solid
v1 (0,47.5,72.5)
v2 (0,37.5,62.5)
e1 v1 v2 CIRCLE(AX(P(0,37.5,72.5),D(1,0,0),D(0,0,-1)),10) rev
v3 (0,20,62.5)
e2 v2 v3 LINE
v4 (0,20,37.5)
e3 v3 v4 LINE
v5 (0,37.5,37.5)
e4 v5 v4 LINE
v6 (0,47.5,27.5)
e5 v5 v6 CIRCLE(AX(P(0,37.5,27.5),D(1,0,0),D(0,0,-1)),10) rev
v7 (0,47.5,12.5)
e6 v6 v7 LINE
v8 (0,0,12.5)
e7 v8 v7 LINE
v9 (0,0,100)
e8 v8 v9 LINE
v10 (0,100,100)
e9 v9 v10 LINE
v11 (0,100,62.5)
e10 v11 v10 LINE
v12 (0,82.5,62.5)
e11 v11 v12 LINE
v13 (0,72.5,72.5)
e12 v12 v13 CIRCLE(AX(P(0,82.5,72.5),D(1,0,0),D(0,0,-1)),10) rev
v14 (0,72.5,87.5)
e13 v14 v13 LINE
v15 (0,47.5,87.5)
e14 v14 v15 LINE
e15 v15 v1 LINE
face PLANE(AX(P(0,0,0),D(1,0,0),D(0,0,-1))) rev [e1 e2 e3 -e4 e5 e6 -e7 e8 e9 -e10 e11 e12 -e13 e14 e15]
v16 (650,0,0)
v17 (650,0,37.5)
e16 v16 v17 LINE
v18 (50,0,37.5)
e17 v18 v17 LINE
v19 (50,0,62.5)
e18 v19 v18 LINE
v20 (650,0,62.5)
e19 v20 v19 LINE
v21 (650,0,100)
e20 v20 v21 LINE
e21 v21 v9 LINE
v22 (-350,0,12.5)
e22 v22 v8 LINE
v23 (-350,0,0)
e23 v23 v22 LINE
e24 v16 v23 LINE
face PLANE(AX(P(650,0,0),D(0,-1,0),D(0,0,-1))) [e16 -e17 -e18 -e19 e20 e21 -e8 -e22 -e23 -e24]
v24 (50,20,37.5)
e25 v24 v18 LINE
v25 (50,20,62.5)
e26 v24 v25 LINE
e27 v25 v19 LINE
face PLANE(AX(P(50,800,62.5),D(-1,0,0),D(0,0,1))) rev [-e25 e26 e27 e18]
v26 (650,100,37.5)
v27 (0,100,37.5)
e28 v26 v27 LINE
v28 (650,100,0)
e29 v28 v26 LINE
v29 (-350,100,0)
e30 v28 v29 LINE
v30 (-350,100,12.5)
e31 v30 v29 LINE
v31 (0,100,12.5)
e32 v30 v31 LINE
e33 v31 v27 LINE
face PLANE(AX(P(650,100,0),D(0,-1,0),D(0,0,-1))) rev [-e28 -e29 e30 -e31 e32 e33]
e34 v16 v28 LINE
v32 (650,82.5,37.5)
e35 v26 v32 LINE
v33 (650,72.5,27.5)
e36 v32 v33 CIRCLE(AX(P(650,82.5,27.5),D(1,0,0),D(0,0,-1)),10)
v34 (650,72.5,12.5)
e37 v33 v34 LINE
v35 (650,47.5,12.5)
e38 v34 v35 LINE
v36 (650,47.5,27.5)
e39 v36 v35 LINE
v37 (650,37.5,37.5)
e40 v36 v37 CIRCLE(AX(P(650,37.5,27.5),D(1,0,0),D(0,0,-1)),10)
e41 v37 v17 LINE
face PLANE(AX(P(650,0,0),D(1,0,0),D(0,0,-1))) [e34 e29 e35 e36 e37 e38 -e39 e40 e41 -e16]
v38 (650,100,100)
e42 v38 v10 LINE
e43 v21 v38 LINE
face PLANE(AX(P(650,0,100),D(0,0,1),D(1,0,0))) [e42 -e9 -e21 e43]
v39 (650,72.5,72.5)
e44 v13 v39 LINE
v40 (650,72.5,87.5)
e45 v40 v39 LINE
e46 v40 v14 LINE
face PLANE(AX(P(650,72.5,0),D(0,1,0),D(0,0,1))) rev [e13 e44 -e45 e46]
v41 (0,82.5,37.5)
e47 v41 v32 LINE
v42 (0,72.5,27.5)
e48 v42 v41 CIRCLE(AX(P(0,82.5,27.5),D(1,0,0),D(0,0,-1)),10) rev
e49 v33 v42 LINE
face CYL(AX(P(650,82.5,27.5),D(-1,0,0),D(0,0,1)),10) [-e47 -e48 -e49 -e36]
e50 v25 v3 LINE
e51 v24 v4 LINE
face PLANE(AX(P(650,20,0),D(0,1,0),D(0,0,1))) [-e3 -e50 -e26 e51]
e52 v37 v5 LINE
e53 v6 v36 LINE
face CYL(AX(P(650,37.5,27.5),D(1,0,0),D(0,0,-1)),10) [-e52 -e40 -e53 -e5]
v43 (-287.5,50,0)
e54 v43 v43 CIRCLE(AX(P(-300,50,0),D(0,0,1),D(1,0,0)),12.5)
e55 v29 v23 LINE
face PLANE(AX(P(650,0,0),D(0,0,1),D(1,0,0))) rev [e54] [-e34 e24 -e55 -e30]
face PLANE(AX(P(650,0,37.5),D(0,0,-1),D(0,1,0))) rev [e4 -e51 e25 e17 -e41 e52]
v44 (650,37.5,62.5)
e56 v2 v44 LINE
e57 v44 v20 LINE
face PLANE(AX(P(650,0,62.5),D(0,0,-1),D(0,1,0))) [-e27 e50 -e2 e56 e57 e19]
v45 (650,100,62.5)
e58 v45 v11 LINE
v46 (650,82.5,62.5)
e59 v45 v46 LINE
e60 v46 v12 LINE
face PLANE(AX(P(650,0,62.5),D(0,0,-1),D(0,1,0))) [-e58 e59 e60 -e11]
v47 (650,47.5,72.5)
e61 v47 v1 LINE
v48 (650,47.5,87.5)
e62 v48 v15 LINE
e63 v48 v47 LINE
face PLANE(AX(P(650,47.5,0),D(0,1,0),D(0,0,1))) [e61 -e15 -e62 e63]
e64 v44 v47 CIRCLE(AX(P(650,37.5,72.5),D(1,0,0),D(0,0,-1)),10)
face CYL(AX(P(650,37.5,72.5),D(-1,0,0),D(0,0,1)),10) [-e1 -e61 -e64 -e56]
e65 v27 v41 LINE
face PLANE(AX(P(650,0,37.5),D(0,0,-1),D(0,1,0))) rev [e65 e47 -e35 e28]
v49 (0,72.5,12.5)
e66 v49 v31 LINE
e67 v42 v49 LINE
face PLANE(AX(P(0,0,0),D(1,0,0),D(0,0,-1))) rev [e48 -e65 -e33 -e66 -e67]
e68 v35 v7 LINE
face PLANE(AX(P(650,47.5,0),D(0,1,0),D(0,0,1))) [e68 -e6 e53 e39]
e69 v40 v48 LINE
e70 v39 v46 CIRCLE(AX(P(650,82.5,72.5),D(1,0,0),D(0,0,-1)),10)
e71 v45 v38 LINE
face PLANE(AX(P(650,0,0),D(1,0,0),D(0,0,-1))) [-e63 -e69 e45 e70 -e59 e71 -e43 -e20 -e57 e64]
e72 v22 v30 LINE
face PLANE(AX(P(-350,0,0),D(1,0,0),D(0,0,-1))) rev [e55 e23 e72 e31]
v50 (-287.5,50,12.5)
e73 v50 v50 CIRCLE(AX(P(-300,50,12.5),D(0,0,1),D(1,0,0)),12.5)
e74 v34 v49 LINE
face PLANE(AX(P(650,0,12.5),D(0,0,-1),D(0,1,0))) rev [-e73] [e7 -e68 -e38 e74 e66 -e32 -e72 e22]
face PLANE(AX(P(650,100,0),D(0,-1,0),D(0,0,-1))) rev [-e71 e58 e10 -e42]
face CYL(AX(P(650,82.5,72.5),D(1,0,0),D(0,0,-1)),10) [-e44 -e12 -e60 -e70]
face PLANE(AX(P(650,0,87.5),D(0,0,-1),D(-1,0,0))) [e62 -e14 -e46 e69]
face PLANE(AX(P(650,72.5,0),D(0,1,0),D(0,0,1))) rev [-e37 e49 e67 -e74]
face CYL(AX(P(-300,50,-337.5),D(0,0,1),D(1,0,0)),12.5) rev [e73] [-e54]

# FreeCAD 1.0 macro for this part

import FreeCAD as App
import Part
import Sketcher


def edges_at(feature, points):
    """Names of the edges that pass closest to the given points."""
    edges = feature.Shape.Edges
    near = lambda p: min(range(len(edges)), key=lambda i: edges[i].distToShape(Part.Vertex(*p))[0])
    return sorted({f"Edge{near(p) + 1}" for p in points})

doc = App.newDocument("Part")
body = doc.addObject("PartDesign::Body", "Body")

sketch1 = doc.addObject("Sketcher::SketchObject", "Sketch")
body.addObject(sketch1)
sketch1.AttachmentSupport = (doc.YZ_Plane, [""])
sketch1.MapMode = "FlatFace"
sketch1.addGeometry([
    Part.LineSegment(App.Vector(0, 100, 0), App.Vector(0, 0, 0)),
    Part.LineSegment(App.Vector(0, 0, 0), App.Vector(100, 0, 0)),
    Part.LineSegment(App.Vector(100, 0, 0), App.Vector(100, 38, 0)),
    Part.LineSegment(App.Vector(100, 38, 0), App.Vector(72, 38, 0)),
    Part.LineSegment(App.Vector(72, 38, 0), App.Vector(72, 12, 0)),
    Part.LineSegment(App.Vector(72, 12, 0), App.Vector(48, 12, 0)),
    Part.LineSegment(App.Vector(48, 12, 0), App.Vector(48, 38, 0)),
    Part.LineSegment(App.Vector(48, 38, 0), App.Vector(20, 38, 0)),
    Part.LineSegment(App.Vector(20, 38, 0), App.Vector(20, 62, 0)),
    Part.LineSegment(App.Vector(20, 62, 0), App.Vector(48, 62, 0)),
    Part.LineSegment(App.Vector(48, 62, 0), App.Vector(48, 88, 0)),
    Part.LineSegment(App.Vector(48, 88, 0), App.Vector(72, 88, 0)),
    Part.LineSegment(App.Vector(72, 88, 0), App.Vector(72, 62, 0)),
    Part.LineSegment(App.Vector(72, 62, 0), App.Vector(100, 62, 0)),
    Part.LineSegment(App.Vector(100, 62, 0), App.Vector(100, 100, 0)),
    Part.LineSegment(App.Vector(100, 100, 0), App.Vector(0, 100, 0)),
], False)
sketch1.addConstraint([
    Sketcher.Constraint("Coincident", 0, 2, 1, 1),
    Sketcher.Constraint("Coincident", 1, 2, 2, 1),
    Sketcher.Constraint("Coincident", 2, 2, 3, 1),
    Sketcher.Constraint("Coincident", 3, 2, 4, 1),
    Sketcher.Constraint("Coincident", 4, 2, 5, 1),
    Sketcher.Constraint("Coincident", 5, 2, 6, 1),
    Sketcher.Constraint("Coincident", 6, 2, 7, 1),
    Sketcher.Constraint("Coincident", 7, 2, 8, 1),
    Sketcher.Constraint("Coincident", 8, 2, 9, 1),
    Sketcher.Constraint("Coincident", 9, 2, 10, 1),
    Sketcher.Constraint("Coincident", 10, 2, 11, 1),
    Sketcher.Constraint("Coincident", 11, 2, 12, 1),
    Sketcher.Constraint("Coincident", 12, 2, 13, 1),
    Sketcher.Constraint("Coincident", 13, 2, 14, 1),
    Sketcher.Constraint("Coincident", 14, 2, 15, 1),
    Sketcher.Constraint("Coincident", 15, 2, 0, 1),
    Sketcher.Constraint("Vertical", 0),
    Sketcher.Constraint("Horizontal", 1),
    Sketcher.Constraint("Vertical", 2),
    Sketcher.Constraint("Horizontal", 3),
    Sketcher.Constraint("Vertical", 4),
    Sketcher.Constraint("Horizontal", 5),
    Sketcher.Constraint("Vertical", 6),
    Sketcher.Constraint("Horizontal", 7),
    Sketcher.Constraint("Vertical", 8),
    Sketcher.Constraint("Horizontal", 9),
    Sketcher.Constraint("Vertical", 10),
    Sketcher.Constraint("Horizontal", 11),
    Sketcher.Constraint("Vertical", 12),
    Sketcher.Constraint("Horizontal", 13),
    Sketcher.Constraint("Vertical", 14),
    Sketcher.Constraint("Horizontal", 15),
    Sketcher.Constraint("Coincident", 0, 2, -1, 1),
    Sketcher.Constraint("Horizontal", 3, 2, 6, 2),
    Sketcher.Constraint("Horizontal", 9, 2, 12, 2),
    Sketcher.Constraint("Vertical", 6, 2, 9, 2),
    Sketcher.Constraint("Vertical", 4, 2, 11, 2),
    Sketcher.Constraint("Vertical", 2, 2, 13, 2),
    Sketcher.Constraint("Equal", 3, 7),
    Sketcher.Constraint("Equal", 15, 0),
    Sketcher.Constraint("Equal", 11, 4),
    Sketcher.Constraint("Equal", 6, 8),
    Sketcher.Constraint("Equal", 8, 10),
    Sketcher.Constraint("Equal", 2, 14),
    Sketcher.Constraint("DistanceX", 1, 1, 1, 2, 100.0),
    Sketcher.Constraint("DistanceX", 5, 2, 5, 1, 25.0),
    Sketcher.Constraint("DistanceX", 3, 2, 3, 1, 27.5),
])
pad1 = doc.addObject("PartDesign::Pad", "Pad")
body.addObject(pad1)
pad1.Profile = sketch1
pad1.Length = 650

sketch2 = doc.addObject("Sketcher::SketchObject", "Sketch001")
body.addObject(sketch2)
sketch2.AttachmentSupport = (doc.XZ_Plane, [""])
sketch2.MapMode = "FlatFace"
sketch2.addGeometry([
    Part.LineSegment(App.Vector(50, 62, 0), App.Vector(50, 38, 0)),
    Part.LineSegment(App.Vector(50, 38, 0), App.Vector(750, 38, 0)),
    Part.LineSegment(App.Vector(750, 38, 0), App.Vector(750, 62, 0)),
    Part.LineSegment(App.Vector(750, 62, 0), App.Vector(50, 62, 0)),
], False)
sketch2.addConstraint([
    Sketcher.Constraint("Coincident", 0, 2, 1, 1),
    Sketcher.Constraint("Coincident", 1, 2, 2, 1),
    Sketcher.Constraint("Coincident", 2, 2, 3, 1),
    Sketcher.Constraint("Coincident", 3, 2, 0, 1),
    Sketcher.Constraint("Vertical", 0),
    Sketcher.Constraint("Horizontal", 1),
    Sketcher.Constraint("Vertical", 2),
    Sketcher.Constraint("Horizontal", 3),
    Sketcher.Constraint("DistanceX", 1, 1, 1, 2, 700.0),
    Sketcher.Constraint("DistanceY", 0, 2, 0, 1, 25.0),
    Sketcher.Constraint("DistanceX", -1, 1, 0, 2, 50.0),
    Sketcher.Constraint("DistanceY", -1, 1, 0, 2, 37.5),
])
pocket1 = doc.addObject("PartDesign::Pocket", "Pocket")
body.addObject(pocket1)
pocket1.Profile = sketch2
pocket1.Length = 800
doc.recompute()

fillet = doc.addObject("PartDesign::Fillet", "Fillet")
body.addObject(fillet)
fillet.Base = (pocket1, edges_at(pocket1, [
    (325, 72.5, 37.5),
    (325, 72.5, 62.5),
    (325, 47.5, 62.5),
    (325, 47.5, 37.5),
]))
fillet.Radius = 10

sketch3 = doc.addObject("Sketcher::SketchObject", "Sketch002")
body.addObject(sketch3)
sketch3.AttachmentSupport = (doc.YZ_Plane, [""])
sketch3.MapMode = "FlatFace"
sketch3.addGeometry([
    Part.LineSegment(App.Vector(100, 0, 0), App.Vector(0, 0, 0)),
    Part.LineSegment(App.Vector(0, 0, 0), App.Vector(0, 12, 0)),
    Part.LineSegment(App.Vector(0, 12, 0), App.Vector(100, 12, 0)),
    Part.LineSegment(App.Vector(100, 12, 0), App.Vector(100, 0, 0)),
], False)
sketch3.addConstraint([
    Sketcher.Constraint("Coincident", 0, 2, 1, 1),
    Sketcher.Constraint("Coincident", 1, 2, 2, 1),
    Sketcher.Constraint("Coincident", 2, 2, 3, 1),
    Sketcher.Constraint("Coincident", 3, 2, 0, 1),
    Sketcher.Constraint("Horizontal", 0),
    Sketcher.Constraint("Vertical", 1),
    Sketcher.Constraint("Horizontal", 2),
    Sketcher.Constraint("Vertical", 3),
    Sketcher.Constraint("Coincident", 0, 2, -1, 1),
    Sketcher.Constraint("DistanceX", 0, 2, 0, 1, 100.0),
    Sketcher.Constraint("DistanceY", 1, 1, 1, 2, 12.5),
])
pad2 = doc.addObject("PartDesign::Pad", "Pad001")
body.addObject(pad2)
pad2.Profile = sketch3
pad2.Length = 350
pad2.Reversed = True

sketch4 = doc.addObject("Sketcher::SketchObject", "Sketch003")
body.addObject(sketch4)
sketch4.AttachmentSupport = (doc.XY_Plane, [""])
sketch4.MapMode = "FlatFace"
sketch4.AttachmentOffset = App.Placement(App.Vector(0, 0, 12.5), App.Rotation())
sketch4.addGeometry(Part.Circle(App.Vector(-300, 50, 0), App.Vector(0, 0, 1), 12), False)
sketch4.addConstraint([
    Sketcher.Constraint("Diameter", 0, 25.0),
    Sketcher.Constraint("DistanceX", 0, 3, -1, 1, 300.0),
    Sketcher.Constraint("DistanceY", -1, 1, 0, 3, 50.0),
])
pocket2 = doc.addObject("PartDesign::Pocket", "Pocket001")
body.addObject(pocket2)
pocket2.Profile = sketch4
pocket2.Length = 350

doc.recompute()
